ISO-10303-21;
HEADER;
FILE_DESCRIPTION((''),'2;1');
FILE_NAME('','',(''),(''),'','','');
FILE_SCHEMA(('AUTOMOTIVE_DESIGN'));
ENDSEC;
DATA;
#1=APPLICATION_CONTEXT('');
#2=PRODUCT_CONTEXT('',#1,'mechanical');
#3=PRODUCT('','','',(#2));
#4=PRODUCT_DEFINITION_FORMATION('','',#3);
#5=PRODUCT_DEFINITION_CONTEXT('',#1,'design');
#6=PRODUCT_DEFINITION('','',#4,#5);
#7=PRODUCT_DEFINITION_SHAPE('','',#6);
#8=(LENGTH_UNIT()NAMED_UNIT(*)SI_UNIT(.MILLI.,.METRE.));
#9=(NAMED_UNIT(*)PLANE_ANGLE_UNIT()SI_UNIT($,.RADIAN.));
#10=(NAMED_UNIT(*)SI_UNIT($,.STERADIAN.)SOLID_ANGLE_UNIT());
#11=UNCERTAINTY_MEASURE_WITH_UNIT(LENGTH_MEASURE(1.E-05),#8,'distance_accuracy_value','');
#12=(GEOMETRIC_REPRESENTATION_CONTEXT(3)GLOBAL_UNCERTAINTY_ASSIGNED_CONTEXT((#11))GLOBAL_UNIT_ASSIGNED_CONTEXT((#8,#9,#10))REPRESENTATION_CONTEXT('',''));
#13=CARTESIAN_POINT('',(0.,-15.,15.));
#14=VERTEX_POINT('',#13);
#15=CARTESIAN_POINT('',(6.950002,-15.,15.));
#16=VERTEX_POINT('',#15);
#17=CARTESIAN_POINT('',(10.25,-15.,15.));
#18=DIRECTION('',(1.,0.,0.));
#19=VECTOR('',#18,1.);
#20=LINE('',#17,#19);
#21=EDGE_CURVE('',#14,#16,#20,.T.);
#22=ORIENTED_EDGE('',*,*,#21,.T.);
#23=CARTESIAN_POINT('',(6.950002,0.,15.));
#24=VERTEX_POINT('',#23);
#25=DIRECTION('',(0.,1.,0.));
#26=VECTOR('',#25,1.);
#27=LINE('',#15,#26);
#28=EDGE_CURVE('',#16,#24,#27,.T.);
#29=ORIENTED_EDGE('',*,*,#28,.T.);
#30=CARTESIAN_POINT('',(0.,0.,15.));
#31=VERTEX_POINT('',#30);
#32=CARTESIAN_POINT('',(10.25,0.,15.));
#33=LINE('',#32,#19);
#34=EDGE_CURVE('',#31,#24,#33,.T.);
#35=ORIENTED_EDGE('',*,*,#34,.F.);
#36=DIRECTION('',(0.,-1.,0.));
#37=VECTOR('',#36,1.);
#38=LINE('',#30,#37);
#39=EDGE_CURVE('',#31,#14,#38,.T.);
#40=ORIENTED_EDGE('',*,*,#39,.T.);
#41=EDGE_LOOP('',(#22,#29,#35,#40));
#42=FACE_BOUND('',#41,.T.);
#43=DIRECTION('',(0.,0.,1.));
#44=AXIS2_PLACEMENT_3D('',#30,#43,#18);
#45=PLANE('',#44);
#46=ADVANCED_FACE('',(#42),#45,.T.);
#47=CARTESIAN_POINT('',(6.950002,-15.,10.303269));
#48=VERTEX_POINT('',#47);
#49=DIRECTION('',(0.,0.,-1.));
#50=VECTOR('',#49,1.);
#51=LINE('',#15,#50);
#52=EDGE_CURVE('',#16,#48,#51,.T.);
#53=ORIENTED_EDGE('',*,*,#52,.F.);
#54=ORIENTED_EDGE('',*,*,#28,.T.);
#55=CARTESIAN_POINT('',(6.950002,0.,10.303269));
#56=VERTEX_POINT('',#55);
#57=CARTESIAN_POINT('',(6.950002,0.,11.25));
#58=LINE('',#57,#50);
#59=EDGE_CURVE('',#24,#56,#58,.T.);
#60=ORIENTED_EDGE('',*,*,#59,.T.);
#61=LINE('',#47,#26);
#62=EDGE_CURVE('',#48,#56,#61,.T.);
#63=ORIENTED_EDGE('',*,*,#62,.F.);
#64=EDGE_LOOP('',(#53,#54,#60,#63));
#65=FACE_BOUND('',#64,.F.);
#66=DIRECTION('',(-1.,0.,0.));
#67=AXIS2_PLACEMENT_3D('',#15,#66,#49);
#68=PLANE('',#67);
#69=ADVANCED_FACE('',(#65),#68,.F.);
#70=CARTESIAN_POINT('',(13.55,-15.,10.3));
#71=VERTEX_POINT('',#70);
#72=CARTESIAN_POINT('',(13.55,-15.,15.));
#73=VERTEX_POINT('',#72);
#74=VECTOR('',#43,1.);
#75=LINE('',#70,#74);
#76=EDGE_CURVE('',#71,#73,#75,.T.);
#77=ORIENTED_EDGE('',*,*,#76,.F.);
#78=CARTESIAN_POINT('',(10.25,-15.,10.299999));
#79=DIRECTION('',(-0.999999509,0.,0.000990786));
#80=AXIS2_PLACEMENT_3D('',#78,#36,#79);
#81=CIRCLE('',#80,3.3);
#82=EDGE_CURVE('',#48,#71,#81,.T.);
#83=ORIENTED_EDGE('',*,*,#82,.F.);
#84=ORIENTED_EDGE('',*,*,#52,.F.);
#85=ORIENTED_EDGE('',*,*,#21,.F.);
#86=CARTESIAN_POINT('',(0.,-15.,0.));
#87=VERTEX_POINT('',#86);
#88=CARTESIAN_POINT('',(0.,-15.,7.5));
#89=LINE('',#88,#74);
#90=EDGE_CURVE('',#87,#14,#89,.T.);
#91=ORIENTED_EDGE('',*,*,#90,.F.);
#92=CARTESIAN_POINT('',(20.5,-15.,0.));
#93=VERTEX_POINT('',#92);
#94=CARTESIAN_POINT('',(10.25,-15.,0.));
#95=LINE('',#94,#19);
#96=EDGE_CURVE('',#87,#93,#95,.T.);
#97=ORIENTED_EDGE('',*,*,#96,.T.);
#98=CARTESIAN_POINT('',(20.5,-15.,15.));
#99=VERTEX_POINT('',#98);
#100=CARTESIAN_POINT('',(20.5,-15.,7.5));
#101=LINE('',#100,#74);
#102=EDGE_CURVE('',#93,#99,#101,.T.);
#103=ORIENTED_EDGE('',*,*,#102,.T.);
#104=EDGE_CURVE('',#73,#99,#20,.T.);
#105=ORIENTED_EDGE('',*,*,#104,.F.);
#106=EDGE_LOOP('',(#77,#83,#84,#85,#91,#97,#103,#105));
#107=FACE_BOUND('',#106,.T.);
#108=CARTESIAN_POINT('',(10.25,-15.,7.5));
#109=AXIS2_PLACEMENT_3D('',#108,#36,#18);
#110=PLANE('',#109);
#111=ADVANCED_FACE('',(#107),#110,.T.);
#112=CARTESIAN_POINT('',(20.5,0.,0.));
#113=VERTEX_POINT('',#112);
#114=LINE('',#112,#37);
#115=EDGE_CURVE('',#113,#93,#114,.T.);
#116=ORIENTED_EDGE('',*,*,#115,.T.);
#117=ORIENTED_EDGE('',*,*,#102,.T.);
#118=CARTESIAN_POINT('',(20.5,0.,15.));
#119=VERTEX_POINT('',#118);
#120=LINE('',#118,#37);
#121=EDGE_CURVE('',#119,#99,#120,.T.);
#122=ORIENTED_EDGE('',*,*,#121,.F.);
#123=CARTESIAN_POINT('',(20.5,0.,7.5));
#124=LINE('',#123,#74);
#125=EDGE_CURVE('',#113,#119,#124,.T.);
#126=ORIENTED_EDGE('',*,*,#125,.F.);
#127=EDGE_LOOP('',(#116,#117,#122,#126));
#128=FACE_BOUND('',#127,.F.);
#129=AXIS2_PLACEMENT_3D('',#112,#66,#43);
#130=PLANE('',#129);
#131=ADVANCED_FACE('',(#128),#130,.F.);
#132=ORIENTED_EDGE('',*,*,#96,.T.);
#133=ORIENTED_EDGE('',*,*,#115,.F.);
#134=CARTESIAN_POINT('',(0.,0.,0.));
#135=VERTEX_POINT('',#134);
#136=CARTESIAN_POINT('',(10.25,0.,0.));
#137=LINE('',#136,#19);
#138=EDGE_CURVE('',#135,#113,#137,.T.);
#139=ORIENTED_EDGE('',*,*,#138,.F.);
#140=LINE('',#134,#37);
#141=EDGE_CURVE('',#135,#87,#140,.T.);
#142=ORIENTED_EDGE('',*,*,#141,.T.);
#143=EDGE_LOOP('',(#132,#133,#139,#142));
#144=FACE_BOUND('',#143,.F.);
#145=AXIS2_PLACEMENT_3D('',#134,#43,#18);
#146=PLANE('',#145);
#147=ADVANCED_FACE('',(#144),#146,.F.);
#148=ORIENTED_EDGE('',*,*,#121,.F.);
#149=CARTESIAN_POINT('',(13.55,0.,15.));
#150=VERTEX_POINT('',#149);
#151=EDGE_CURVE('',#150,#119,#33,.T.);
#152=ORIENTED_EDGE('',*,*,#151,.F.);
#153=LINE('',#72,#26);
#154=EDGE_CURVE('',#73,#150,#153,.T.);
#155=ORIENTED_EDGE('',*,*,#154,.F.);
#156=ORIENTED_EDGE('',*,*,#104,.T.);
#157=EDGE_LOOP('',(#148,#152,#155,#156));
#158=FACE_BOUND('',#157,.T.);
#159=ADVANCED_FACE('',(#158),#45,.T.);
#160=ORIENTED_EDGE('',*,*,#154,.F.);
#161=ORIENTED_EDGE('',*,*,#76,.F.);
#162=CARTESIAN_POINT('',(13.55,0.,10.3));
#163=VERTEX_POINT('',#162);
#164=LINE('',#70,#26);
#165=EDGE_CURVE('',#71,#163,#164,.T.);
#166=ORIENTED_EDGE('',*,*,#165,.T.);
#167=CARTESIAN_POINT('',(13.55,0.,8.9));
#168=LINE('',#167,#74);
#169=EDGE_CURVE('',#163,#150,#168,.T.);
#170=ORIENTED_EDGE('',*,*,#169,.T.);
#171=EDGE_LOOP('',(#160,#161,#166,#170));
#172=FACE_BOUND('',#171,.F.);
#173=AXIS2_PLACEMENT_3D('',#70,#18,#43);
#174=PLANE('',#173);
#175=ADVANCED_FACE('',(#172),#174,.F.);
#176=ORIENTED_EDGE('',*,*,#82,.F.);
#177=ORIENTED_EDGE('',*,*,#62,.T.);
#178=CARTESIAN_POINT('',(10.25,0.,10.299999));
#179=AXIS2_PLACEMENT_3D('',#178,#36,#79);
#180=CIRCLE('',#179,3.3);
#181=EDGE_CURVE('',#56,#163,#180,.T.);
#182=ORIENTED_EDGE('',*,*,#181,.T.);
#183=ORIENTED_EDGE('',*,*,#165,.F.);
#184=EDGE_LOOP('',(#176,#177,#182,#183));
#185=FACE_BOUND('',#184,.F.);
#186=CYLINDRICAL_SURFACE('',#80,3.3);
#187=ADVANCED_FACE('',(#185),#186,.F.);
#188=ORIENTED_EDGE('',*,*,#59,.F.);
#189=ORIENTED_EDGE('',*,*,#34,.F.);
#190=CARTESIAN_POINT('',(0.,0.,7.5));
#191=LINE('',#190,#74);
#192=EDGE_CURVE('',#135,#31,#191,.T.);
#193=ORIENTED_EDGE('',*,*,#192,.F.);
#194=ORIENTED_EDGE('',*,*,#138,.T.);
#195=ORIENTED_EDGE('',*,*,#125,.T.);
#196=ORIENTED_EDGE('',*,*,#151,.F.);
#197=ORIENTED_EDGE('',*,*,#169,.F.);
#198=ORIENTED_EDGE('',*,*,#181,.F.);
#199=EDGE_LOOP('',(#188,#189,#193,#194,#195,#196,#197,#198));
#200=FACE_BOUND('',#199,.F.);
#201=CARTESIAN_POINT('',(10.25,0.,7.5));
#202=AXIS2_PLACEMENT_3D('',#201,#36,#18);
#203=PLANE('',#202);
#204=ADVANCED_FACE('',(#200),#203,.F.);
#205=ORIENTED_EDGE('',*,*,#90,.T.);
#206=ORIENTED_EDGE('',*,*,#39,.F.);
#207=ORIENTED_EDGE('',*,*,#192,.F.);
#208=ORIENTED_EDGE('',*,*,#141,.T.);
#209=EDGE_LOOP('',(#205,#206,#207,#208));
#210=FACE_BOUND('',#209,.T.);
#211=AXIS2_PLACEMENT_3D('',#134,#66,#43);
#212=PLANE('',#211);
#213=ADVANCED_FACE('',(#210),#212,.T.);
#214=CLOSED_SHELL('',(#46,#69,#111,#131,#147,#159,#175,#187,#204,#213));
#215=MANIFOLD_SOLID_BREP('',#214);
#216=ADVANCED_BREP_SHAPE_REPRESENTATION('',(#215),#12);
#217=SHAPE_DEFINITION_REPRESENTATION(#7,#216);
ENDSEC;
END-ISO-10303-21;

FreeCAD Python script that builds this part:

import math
import FreeCAD as App
import Part
import Sketcher

V = App.Vector
Q = App.Units.Quantity

doc = App.newDocument("Part")
params = doc.addObject("Spreadsheet::Sheet", "Params")
for row, (alias, value) in enumerate([
    ("sketch1_height", "15 mm"),
    ("sketch1_width", "20.5 mm"),
    ("pad1_length", "15 mm"),
    ("sketch2_radius", "3.3 mm"),
    ("sketch2_height", "4.7 mm"),
], start=1):
    params.set(f"A{row}", alias)
    params.set(f"B{row}", "=" + value)
    params.setAlias(f"B{row}", alias)

body = doc.addObject("PartDesign::Body", "Body")

sketch1 = doc.addObject("Sketcher::SketchObject", "Sketch")
body.addObject(sketch1)
sketch1.AttachmentSupport = (doc.XZ_Plane, [""])
sketch1.MapMode = "FlatFace"
sketch1.addGeometry(Part.LineSegment(V(0, 15, 0), V(0, 0, 0)), False)
sketch1.addGeometry(Part.LineSegment(V(0, 0, 0), V(20, 0, 0)), False)
sketch1.addGeometry(Part.LineSegment(V(20, 0, 0), V(20, 15, 0)), False)
sketch1.addGeometry(Part.LineSegment(V(20, 15, 0), V(0, 15, 0)), False)
sketch1.addConstraint(Sketcher.Constraint("Coincident", 0, 2, 1, 1))
sketch1.addConstraint(Sketcher.Constraint("Coincident", 1, 2, 2, 1))
sketch1.addConstraint(Sketcher.Constraint("Coincident", 2, 2, 3, 1))
sketch1.addConstraint(Sketcher.Constraint("Coincident", 3, 2, 0, 1))
sketch1.addConstraint(Sketcher.Constraint("Vertical", 0))
sketch1.addConstraint(Sketcher.Constraint("Horizontal", 1))
sketch1.addConstraint(Sketcher.Constraint("Vertical", 2))
sketch1.addConstraint(Sketcher.Constraint("Horizontal", 3))
sketch1.addConstraint(Sketcher.Constraint("Coincident", 0, 2, -1, 1))
sketch1.addConstraint(Sketcher.Constraint("DistanceY", 0, 2, 0, 1, Q("15 mm")))
sketch1.addConstraint(Sketcher.Constraint("DistanceX", 1, 1, 1, 2, Q("20.5 mm")))
sketch1.setExpression("Constraints[9]", "Params.sketch1_height")
sketch1.setExpression("Constraints[10]", "Params.sketch1_width")
pad1 = doc.addObject("PartDesign::Pad", "Pad")
body.addObject(pad1)
pad1.Profile = sketch1
pad1.setExpression("Length", "Params.pad1_length")

sketch2 = doc.addObject("Sketcher::SketchObject", "Sketch001")
body.addObject(sketch2)
sketch2.AttachmentSupport = (doc.XZ_Plane, [""])
sketch2.MapMode = "FlatFace"
sketch2.AttachmentOffset = App.Placement(V(0, 0, 15), App.Rotation())
sketch2.addGeometry(Part.ArcOfCircle(Part.Circle(V(10.3, 10.3, 0), V(0, 0, 1), 3.3), math.radians(180), math.radians(360)), False)
sketch2.addGeometry(Part.LineSegment(V(13.6, 10.3, 0), V(13.6, 15, 0)), False)
sketch2.addGeometry(Part.LineSegment(V(13.6, 15, 0), V(7, 15, 0)), False)
sketch2.addGeometry(Part.LineSegment(V(7, 15, 0), V(7, 10.3, 0)), False)
sketch2.addConstraint(Sketcher.Constraint("Tangent", 0, 2, 1, 1))
sketch2.addConstraint(Sketcher.Constraint("Coincident", 1, 2, 2, 1))
sketch2.addConstraint(Sketcher.Constraint("Coincident", 2, 2, 3, 1))
sketch2.addConstraint(Sketcher.Constraint("Coincident", 3, 2, 0, 1))
sketch2.addConstraint(Sketcher.Constraint("Vertical", 1))
sketch2.addConstraint(Sketcher.Constraint("Horizontal", 2))
sketch2.addConstraint(Sketcher.Constraint("Vertical", 3))
sketch2.addConstraint(Sketcher.Constraint("Radius", 0, Q("3.3 mm")))
sketch2.addConstraint(Sketcher.Constraint("DistanceY", 1, 1, 1, 2, Q("4.7 mm")))
sketch2.addConstraint(Sketcher.Constraint("DistanceY", -1, 1, 1, 2, Q("15 mm")))
sketch2.addConstraint(Sketcher.Constraint("DistanceX", -1, 1, 0, 3, Q("10.25 mm")))
sketch2.addConstraint(Sketcher.Constraint("DistanceY", 3, 2, 3, 1, Q("4.696731 mm")))
sketch2.setExpression("Constraints[7]", "Params.sketch2_radius")
sketch2.setExpression("Constraints[8]", "Params.sketch2_height")
pocket1 = doc.addObject("PartDesign::Pocket", "Pocket")
body.addObject(pocket1)
pocket1.Profile = sketch2
pocket1.Type = "ThroughAll"

doc.recompute()
